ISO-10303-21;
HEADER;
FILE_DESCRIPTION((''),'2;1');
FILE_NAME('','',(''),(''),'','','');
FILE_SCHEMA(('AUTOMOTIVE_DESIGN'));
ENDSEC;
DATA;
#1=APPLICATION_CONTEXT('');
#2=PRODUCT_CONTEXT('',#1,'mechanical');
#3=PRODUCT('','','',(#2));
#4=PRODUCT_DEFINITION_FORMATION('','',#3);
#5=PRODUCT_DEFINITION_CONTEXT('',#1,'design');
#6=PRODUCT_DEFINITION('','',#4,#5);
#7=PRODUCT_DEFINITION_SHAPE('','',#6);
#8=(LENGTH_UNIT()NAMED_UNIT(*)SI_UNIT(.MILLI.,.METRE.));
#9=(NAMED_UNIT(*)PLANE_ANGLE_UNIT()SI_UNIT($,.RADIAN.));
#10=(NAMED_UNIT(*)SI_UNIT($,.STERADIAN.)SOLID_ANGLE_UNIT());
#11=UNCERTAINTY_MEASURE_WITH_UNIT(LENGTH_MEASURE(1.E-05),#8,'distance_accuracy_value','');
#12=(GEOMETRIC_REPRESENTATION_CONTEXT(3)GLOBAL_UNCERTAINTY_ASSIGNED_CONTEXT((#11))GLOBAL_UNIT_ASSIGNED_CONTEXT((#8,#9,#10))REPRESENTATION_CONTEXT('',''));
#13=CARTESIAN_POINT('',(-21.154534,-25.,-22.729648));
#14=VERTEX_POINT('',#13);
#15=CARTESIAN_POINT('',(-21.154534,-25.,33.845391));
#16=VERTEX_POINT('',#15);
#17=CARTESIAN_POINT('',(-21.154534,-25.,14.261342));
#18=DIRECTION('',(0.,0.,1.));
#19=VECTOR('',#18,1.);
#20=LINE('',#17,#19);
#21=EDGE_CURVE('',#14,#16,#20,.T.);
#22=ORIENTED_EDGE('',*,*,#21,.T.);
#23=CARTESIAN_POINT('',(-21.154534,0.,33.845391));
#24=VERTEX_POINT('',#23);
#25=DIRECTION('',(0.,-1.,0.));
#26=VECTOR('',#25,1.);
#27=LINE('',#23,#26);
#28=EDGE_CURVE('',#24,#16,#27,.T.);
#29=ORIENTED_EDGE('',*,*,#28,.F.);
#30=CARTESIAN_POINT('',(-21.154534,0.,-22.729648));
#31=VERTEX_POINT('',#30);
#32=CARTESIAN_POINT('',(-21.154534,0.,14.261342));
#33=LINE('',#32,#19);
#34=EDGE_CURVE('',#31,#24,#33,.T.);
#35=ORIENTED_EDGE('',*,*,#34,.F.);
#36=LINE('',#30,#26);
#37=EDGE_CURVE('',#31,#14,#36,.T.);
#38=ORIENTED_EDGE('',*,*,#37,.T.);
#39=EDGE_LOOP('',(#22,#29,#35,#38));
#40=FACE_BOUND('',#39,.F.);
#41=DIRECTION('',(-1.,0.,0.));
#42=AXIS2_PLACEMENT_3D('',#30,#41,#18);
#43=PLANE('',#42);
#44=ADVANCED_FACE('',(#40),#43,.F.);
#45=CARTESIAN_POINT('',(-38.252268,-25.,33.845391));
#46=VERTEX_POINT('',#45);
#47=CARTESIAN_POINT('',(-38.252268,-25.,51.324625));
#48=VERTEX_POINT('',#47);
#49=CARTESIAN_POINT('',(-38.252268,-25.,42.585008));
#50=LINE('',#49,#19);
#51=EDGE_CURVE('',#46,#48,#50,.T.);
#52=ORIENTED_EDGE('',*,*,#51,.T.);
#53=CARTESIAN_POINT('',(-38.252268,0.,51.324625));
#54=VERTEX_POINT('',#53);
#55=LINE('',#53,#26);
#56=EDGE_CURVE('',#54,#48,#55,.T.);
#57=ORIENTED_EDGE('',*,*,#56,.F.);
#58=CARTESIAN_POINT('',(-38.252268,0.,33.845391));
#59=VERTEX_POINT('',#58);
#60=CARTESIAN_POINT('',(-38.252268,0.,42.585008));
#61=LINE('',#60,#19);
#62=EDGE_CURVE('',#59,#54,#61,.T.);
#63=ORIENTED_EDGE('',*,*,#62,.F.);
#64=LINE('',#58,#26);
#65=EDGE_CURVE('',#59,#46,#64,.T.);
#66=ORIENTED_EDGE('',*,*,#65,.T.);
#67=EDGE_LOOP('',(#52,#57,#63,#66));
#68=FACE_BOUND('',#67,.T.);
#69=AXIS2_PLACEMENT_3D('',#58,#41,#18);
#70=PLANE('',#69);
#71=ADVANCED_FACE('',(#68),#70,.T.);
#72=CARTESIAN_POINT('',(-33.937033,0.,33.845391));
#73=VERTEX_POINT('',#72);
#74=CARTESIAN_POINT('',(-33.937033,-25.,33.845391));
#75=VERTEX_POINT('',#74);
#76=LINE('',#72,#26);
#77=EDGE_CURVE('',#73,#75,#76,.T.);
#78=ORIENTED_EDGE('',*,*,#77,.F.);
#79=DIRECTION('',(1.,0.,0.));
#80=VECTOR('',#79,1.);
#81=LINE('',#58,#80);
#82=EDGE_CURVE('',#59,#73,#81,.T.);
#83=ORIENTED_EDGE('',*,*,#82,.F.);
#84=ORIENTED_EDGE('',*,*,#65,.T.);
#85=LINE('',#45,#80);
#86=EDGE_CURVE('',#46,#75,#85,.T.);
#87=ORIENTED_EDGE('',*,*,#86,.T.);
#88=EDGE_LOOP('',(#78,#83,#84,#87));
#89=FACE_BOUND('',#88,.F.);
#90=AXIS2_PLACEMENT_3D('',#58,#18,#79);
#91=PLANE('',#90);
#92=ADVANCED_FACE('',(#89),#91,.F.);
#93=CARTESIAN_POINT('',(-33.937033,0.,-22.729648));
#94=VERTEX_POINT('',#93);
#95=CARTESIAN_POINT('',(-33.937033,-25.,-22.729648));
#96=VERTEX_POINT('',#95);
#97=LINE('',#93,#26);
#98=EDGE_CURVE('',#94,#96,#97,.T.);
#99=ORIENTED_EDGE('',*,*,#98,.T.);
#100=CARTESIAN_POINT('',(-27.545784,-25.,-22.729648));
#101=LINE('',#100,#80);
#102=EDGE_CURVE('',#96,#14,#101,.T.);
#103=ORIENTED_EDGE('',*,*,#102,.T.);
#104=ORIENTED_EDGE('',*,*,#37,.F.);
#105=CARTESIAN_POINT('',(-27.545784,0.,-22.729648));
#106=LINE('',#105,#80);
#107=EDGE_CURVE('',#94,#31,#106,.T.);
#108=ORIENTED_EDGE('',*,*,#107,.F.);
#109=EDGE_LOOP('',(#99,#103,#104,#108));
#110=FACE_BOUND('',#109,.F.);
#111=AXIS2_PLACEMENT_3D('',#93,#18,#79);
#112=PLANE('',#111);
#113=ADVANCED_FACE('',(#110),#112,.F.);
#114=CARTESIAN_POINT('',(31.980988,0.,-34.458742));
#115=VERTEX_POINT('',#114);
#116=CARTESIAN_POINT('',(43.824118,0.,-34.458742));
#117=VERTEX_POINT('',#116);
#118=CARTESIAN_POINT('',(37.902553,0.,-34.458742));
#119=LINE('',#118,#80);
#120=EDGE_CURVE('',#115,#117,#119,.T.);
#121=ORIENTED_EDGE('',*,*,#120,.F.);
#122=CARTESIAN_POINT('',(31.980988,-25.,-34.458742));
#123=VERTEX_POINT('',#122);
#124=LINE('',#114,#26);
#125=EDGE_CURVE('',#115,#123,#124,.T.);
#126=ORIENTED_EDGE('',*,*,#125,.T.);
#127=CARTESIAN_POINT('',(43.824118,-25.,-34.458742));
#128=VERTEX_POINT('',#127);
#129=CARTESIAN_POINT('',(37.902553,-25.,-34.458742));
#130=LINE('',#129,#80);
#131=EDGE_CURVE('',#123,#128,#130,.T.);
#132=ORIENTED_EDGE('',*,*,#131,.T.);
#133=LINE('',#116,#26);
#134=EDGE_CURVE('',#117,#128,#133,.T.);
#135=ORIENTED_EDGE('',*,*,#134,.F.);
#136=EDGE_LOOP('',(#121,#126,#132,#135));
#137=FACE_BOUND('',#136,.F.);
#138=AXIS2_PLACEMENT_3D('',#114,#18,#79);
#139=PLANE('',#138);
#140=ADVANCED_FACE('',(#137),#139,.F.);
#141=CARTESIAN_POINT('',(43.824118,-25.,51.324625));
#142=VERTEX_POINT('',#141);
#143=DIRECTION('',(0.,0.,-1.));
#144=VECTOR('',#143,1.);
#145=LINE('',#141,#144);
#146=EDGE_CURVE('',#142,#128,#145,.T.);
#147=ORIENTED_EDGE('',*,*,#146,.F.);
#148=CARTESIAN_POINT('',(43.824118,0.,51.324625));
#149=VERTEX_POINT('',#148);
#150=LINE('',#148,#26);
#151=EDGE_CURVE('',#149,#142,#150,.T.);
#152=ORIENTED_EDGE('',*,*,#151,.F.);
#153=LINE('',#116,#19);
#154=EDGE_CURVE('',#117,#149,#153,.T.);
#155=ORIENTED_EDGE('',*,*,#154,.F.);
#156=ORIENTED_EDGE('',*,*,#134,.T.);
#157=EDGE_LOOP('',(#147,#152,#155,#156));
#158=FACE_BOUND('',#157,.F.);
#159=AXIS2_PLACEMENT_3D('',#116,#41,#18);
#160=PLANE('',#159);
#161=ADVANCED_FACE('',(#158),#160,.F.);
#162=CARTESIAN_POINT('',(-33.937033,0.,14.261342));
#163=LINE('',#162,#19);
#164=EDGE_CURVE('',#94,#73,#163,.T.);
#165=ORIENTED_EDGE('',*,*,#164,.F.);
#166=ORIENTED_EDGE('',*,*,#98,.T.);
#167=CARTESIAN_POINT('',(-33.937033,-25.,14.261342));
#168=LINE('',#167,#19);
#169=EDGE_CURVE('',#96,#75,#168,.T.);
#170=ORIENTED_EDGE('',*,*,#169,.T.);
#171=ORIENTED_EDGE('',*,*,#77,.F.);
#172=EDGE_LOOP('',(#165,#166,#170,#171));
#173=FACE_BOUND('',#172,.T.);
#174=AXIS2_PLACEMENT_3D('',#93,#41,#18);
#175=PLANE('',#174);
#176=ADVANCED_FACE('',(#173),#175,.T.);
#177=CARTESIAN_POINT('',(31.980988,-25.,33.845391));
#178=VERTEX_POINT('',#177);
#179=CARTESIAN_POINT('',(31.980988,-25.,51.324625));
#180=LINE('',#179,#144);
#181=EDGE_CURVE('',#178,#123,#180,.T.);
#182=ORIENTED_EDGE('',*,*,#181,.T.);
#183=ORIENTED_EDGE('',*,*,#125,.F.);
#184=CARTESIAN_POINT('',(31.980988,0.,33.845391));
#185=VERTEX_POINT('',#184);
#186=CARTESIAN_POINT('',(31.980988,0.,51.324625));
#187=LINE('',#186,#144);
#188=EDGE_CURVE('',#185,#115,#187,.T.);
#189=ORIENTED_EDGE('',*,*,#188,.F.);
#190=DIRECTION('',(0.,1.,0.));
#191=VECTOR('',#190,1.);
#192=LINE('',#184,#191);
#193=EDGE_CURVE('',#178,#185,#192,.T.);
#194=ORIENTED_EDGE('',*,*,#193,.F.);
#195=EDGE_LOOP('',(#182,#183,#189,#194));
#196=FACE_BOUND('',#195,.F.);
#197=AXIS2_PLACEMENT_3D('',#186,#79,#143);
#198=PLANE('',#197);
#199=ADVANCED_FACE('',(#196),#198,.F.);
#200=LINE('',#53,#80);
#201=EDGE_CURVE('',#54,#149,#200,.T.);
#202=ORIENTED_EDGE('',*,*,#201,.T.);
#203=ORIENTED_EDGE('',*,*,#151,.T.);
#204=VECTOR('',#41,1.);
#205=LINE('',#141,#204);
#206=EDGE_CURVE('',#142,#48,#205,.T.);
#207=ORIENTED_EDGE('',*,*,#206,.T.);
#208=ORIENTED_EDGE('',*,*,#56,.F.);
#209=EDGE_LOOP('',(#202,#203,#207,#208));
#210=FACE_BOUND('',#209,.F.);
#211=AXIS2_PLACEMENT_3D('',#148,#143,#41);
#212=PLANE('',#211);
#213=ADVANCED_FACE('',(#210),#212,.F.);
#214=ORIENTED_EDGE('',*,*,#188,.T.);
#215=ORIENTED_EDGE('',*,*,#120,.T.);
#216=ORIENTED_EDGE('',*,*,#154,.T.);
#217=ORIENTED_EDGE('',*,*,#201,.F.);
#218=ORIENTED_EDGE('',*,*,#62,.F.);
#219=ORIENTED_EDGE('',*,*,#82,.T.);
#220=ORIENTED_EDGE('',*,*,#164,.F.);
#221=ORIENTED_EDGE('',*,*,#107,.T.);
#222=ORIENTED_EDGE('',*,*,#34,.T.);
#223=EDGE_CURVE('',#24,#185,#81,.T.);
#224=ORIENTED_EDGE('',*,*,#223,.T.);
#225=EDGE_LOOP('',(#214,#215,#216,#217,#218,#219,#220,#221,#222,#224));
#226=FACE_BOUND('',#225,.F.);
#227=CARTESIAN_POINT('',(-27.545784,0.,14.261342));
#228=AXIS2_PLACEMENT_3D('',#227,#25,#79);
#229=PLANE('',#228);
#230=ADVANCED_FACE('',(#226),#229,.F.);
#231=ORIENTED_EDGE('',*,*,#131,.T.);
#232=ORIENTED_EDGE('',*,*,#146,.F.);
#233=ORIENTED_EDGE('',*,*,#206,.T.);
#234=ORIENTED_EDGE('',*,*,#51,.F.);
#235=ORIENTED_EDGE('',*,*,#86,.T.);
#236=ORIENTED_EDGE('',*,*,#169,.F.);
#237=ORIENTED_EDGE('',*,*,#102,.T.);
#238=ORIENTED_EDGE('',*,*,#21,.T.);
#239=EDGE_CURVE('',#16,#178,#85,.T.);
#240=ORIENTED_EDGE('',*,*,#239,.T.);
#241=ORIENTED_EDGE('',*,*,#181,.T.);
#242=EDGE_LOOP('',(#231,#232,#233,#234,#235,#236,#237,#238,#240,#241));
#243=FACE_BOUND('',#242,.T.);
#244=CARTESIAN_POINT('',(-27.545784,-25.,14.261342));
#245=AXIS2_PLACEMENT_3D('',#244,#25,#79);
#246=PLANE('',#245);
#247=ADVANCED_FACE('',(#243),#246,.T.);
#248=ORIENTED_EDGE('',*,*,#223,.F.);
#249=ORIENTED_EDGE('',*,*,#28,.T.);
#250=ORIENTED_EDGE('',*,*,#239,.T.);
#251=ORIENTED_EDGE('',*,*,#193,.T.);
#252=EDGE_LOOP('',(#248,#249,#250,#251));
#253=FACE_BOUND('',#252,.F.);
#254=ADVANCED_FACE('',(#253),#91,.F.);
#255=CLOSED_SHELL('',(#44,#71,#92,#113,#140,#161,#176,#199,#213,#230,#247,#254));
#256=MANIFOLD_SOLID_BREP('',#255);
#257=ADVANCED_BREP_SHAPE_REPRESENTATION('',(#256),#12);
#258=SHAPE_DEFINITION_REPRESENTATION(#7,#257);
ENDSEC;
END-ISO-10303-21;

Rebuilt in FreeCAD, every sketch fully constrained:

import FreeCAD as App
import Part
import Sketcher


def add_polygon(sketch, points):
    """Adds a closed chain of lines whose ends are joined by coincident constraints."""
    first, n = sketch.GeometryCount, len(points)
    for a, b in zip(points, points[1:] + points[:1]):
        sketch.addGeometry(Part.LineSegment(App.Vector(*a, 0), App.Vector(*b, 0)), False)
    for i in range(n):
        sketch.addConstraint(Sketcher.Constraint("Coincident", first + i, 2, first + (i + 1) % n, 1))

doc = App.newDocument("Part")
body = doc.addObject("PartDesign::Body", "Body")

# Sketch on XZ plane
sketch1 = body.newObject("Sketcher::SketchObject", "Sketch")
sketch1.AttachmentSupport = (doc.getObject("XZ_Plane"), [""])
sketch1.MapMode = "FlatFace"
add_polygon(sketch1, [(-38.252268, 51.324625), (-38.252268, 33.845391), (43.824118, 33.845391), (43.824118, 51.324625)])  # lines 0-3
sketch1.addConstraint([
    Sketcher.Constraint("Vertical", 0),
    Sketcher.Constraint("Horizontal", 1),
    Sketcher.Constraint("Vertical", 2),
    Sketcher.Constraint("Horizontal", 3),
    Sketcher.Constraint("DistanceX", 1, 1, 1, 2, 82.076386),
    Sketcher.Constraint("DistanceY", 0, 2, 0, 1, 17.479233),
    Sketcher.Constraint("DistanceY", -1, 1, 0, 2, 33.845391),
    Sketcher.Constraint("DistanceX", 0, 2, -1, 1, 38.252268),
])
pad1 = body.newObject("PartDesign::Pad", "Pad")
pad1.Profile = sketch1
pad1.Length = 25

# Sketch on XZ plane
sketch2 = body.newObject("Sketcher::SketchObject", "Sketch001")
sketch2.AttachmentSupport = (doc.getObject("XZ_Plane"), [""])
sketch2.MapMode = "FlatFace"
add_polygon(sketch2, [(31.980988, -34.458742), (43.824118, -34.458742), (43.824118, 51.324625), (31.980988, 51.324625)])  # lines 0-3
sketch2.addConstraint([
    Sketcher.Constraint("Horizontal", 0),
    Sketcher.Constraint("Vertical", 1),
    Sketcher.Constraint("Horizontal", 2),
    Sketcher.Constraint("Vertical", 3),
    Sketcher.Constraint("DistanceX", 0, 1, 0, 2, 11.84313),
    Sketcher.Constraint("DistanceY", 1, 1, 1, 2, 85.783366),
    Sketcher.Constraint("DistanceY", 0, 2, -1, 1, 34.458742),
    Sketcher.Constraint("DistanceX", -1, 1, 0, 2, 43.824118),
])
pad2 = body.newObject("PartDesign::Pad", "Pad001")
pad2.Profile = sketch2
pad2.Length = 25

# Sketch on XZ plane
sketch3 = body.newObject("Sketcher::SketchObject", "Sketch002")
sketch3.AttachmentSupport = (doc.getObject("XZ_Plane"), [""])
sketch3.MapMode = "FlatFace"
add_polygon(sketch3, [(-33.937033, 51.252332), (-33.937033, -22.729648), (-21.154534, -22.729648), (-21.154534, 51.252332)])  # lines 0-3
sketch3.addConstraint([
    Sketcher.Constraint("Vertical", 0),
    Sketcher.Constraint("Horizontal", 1),
    Sketcher.Constraint("Vertical", 2),
    Sketcher.Constraint("Horizontal", 3),
    Sketcher.Constraint("DistanceX", 1, 1, 1, 2, 12.782499),
    Sketcher.Constraint("DistanceY", 0, 2, 0, 1, 73.98198),
    Sketcher.Constraint("DistanceY", 0, 2, -1, 1, 22.729648),
    Sketcher.Constraint("DistanceX", 0, 2, -1, 1, 33.937033),
])
pad3 = body.newObject("PartDesign::Pad", "Pad002")
pad3.Profile = sketch3
pad3.Length = 25

doc.recompute()
